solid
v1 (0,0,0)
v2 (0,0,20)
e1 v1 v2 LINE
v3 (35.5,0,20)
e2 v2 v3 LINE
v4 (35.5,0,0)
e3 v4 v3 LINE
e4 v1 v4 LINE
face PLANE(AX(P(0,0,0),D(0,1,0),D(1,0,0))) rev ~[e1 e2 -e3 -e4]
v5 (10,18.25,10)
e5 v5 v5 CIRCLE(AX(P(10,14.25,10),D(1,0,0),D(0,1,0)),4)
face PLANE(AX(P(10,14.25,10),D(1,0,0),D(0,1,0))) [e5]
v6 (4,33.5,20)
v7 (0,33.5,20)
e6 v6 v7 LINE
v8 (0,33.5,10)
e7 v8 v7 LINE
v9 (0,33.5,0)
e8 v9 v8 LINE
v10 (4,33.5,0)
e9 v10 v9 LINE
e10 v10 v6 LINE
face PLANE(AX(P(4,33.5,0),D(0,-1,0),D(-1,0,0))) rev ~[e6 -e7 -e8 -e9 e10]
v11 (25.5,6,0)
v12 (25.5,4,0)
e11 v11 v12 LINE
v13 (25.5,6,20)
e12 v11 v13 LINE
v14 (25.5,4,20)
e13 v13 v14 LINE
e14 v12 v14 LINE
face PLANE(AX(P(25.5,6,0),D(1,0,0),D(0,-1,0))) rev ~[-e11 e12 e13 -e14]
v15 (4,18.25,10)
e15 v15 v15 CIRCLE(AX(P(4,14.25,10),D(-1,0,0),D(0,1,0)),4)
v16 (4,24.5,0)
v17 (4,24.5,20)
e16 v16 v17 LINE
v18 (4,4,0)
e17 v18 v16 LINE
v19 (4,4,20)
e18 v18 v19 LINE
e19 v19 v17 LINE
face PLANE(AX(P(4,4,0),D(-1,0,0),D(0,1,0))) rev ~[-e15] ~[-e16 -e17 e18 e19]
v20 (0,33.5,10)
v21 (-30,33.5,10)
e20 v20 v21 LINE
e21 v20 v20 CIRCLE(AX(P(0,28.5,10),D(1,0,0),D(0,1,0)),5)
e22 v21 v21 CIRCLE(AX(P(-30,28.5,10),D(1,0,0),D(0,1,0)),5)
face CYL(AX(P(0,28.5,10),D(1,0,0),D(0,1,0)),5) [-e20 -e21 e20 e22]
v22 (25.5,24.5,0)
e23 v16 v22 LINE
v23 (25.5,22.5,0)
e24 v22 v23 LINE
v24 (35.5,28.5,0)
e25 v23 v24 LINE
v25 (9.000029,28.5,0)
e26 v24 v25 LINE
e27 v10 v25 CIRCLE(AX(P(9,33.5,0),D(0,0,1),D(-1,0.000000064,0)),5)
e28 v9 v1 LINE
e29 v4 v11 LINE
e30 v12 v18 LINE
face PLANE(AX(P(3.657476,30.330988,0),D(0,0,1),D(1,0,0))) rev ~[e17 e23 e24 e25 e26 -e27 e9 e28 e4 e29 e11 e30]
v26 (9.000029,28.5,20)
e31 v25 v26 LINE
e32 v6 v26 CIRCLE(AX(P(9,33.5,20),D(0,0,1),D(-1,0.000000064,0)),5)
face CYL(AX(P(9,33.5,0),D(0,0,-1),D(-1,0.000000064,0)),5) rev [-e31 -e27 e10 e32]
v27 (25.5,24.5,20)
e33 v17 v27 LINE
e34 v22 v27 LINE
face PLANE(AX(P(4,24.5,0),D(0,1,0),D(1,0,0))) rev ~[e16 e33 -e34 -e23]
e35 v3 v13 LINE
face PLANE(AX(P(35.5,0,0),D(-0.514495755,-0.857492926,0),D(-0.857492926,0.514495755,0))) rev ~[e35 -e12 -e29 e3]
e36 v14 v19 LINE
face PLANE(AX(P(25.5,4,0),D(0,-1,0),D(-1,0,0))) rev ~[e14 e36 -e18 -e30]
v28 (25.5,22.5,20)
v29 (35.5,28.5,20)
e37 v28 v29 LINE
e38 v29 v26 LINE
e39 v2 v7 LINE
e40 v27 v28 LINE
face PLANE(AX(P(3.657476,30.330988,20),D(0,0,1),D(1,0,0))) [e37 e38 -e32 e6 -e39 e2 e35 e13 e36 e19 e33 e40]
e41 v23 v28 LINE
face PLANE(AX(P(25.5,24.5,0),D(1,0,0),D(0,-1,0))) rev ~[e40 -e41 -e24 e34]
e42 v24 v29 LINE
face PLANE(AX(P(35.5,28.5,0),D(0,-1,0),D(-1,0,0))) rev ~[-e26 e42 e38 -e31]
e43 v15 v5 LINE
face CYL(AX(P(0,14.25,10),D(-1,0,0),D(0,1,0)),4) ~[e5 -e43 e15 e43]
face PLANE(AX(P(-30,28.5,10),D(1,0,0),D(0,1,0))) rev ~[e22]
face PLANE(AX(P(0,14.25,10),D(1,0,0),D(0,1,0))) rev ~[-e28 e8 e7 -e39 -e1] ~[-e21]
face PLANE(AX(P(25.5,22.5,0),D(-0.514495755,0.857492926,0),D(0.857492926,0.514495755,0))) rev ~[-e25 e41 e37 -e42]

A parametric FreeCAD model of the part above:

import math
import FreeCAD as App
import Part
import Sketcher

V = App.Vector


def add_polygon(sketch, points):
    """Adds a closed chain of lines whose ends are joined by coincident constraints."""
    first, n = sketch.GeometryCount, len(points)
    for a, b in zip(points, points[1:] + points[:1]):
        sketch.addGeometry(Part.LineSegment(App.Vector(*a, 0), App.Vector(*b, 0)), False)
    for i in range(n):
        sketch.addConstraint(Sketcher.Constraint("Coincident", first + i, 2, first + (i + 1) % n, 1))

doc = App.newDocument("Part")
body = doc.addObject("PartDesign::Body", "Body")

# Sketch on XY plane
sketch1 = body.newObject("Sketcher::SketchObject", "Sketch")
sketch1.AttachmentSupport = (doc.getObject("XY_Plane"), [""])
sketch1.MapMode = "FlatFace"
add_polygon(sketch1, [(0, 0), (35.5, 0), (25.5, 6), (25.5, 4), (4, 4), (4, 24.5), (25.5, 24.5), (25.5, 22.5), (35.5, 28.5), (0, 28.5)])  # lines 0-9
sketch1.addConstraint([
    Sketcher.Constraint("Horizontal", 0),
    Sketcher.Constraint("Vertical", 2),
    Sketcher.Constraint("Horizontal", 3),
    Sketcher.Constraint("Vertical", 4),
    Sketcher.Constraint("Horizontal", 5),
    Sketcher.Constraint("Vertical", 6),
    Sketcher.Constraint("Horizontal", 8),
    Sketcher.Constraint("Vertical", 9),
    Sketcher.Constraint("Coincident", 9, 2, -1, 1),
    Sketcher.Constraint("Vertical", 2, 2, 5, 2),
    Sketcher.Constraint("Vertical", 0, 2, 7, 2),
    Sketcher.Constraint("Equal", 2, 6),
    Sketcher.Constraint("Equal", 1, 7),
    Sketcher.Constraint("DistanceY", 2, 2, 2, 1, 2.0),
    Sketcher.Constraint("DistanceX", 0, 1, 0, 2, 35.5),
    Sketcher.Constraint("DistanceX", 3, 2, 3, 1, 21.5),
    Sketcher.Constraint("DistanceY", 4, 1, 4, 2, 20.5),
    Sketcher.Constraint("DistanceY", 9, 2, 9, 1, 28.5),
    Sketcher.Constraint("DistanceX", -1, 1, 3, 2, 4.0),
])
pad1 = body.newObject("PartDesign::Pad", "Pad")
pad1.Profile = sketch1
pad1.Length = 20

# Sketch on XY plane
sketch2 = body.newObject("Sketcher::SketchObject", "Sketch001")
sketch2.AttachmentSupport = (doc.getObject("XY_Plane"), [""])
sketch2.MapMode = "FlatFace"
sketch2.addGeometry([
    Part.LineSegment(V(0, 33.5, 0), V(0, 28.5, 0)),
    Part.LineSegment(V(0, 28.5, 0), V(9.000029, 28.5, 0)),
    Part.ArcOfCircle(Part.Circle(V(9, 33.5, 0), V(0, 0, 1), 5), math.radians(179.999996), math.radians(270.000336)),
    Part.LineSegment(V(4, 33.5, 0), V(0, 33.5, 0)),
], False)
sketch2.addConstraint([
    Sketcher.Constraint("Coincident", 0, 2, 1, 1),
    Sketcher.Constraint("Coincident", 1, 2, 2, 2),
    Sketcher.Constraint("Coincident", 2, 1, 3, 1),
    Sketcher.Constraint("Coincident", 3, 2, 0, 1),
    Sketcher.Constraint("Vertical", 0),
    Sketcher.Constraint("Horizontal", 1),
    Sketcher.Constraint("Horizontal", 3),
    Sketcher.Constraint("PointOnObject", 0, 2, -2),
    Sketcher.Constraint("Radius", 2, 5.0),
    Sketcher.Constraint("DistanceX", 3, 2, 3, 1, 4.0),
    Sketcher.Constraint("DistanceY", 0, 2, 0, 1, 5.0),
    Sketcher.Constraint("DistanceY", -1, 1, 2, 3, 33.5),
    Sketcher.Constraint("DistanceX", 1, 1, 1, 2, 9.000029),
])
pad2 = body.newObject("PartDesign::Pad", "Pad001")
pad2.Profile = sketch2
pad2.Length = 20

# Sketch on YZ plane
sketch3 = body.newObject("Sketcher::SketchObject", "Sketch002")
sketch3.AttachmentSupport = (doc.getObject("YZ_Plane"), [""])
sketch3.MapMode = "FlatFace"
sketch3.addGeometry(Part.Circle(V(28.5, 10, 0), V(0, 0, 1), 5), False)
sketch3.addConstraint([
    Sketcher.Constraint("Diameter", 0, 10.0),
    Sketcher.Constraint("DistanceY", -1, 1, 0, 3, 10.0),
    Sketcher.Constraint("DistanceX", -1, 1, 0, 3, 28.5),
])
pad3 = body.newObject("PartDesign::Pad", "Pad002")
pad3.Profile = sketch3
pad3.Length = 30
pad3.Reversed = True

# Sketch on YZ plane
sketch4 = body.newObject("Sketcher::SketchObject", "Sketch003")
sketch4.AttachmentSupport = (doc.getObject("YZ_Plane"), [""])
sketch4.MapMode = "FlatFace"
sketch4.addGeometry(Part.Circle(V(14.25, 10, 0), V(0, 0, 1), 4), False)
sketch4.addConstraint([
    Sketcher.Constraint("Diameter", 0, 8.0),
    Sketcher.Constraint("DistanceY", -1, 1, 0, 3, 10.0),
    Sketcher.Constraint("DistanceX", -1, 1, 0, 3, 14.25),
])
pad4 = body.newObject("PartDesign::Pad", "Pad003")
pad4.Profile = sketch4
pad4.Length = 10

doc.recompute()
